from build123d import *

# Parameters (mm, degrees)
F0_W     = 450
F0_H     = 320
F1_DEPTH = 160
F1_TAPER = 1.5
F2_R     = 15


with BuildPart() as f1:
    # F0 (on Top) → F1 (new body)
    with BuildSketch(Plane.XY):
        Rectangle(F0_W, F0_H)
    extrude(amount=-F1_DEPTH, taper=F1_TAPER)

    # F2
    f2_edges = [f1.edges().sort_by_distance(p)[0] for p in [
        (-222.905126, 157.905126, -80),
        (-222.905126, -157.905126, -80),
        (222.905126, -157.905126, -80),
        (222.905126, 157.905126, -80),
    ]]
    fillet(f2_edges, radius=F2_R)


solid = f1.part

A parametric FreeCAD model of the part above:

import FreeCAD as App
import Part
import Sketcher
from FreeCAD import Vector


def edges_at(feature, points):
    """Names of the edges that pass closest to the given points."""
    edges = feature.Shape.Edges
    near = lambda p: min(range(len(edges)), key=lambda i: edges[i].distToShape(Part.Vertex(*p))[0])
    return sorted({f"Edge{near(p) + 1}" for p in points})

doc = App.newDocument("Part")
body = doc.addObject("PartDesign::Body", "Body")

# Sketch on XY plane
sketch1 = doc.addObject("Sketcher::SketchObject", "Sketch")
body.addObject(sketch1)
sketch1.AttachmentSupport = (doc.XY_Plane, [""])
sketch1.MapMode = "FlatFace"
sketch1.addGeometry([
    Part.LineSegment(Vector(-225, 160, 0), Vector(-225, -160, 0)),
    Part.LineSegment(Vector(-225, -160, 0), Vector(225, -160, 0)),
    Part.LineSegment(Vector(225, -160, 0), Vector(225, 160, 0)),
    Part.LineSegment(Vector(225, 160, 0), Vector(-225, 160, 0)),
], False)
sketch1.addConstraint([
    Sketcher.Constraint("Coincident", 0, 2, 1, 1),
    Sketcher.Constraint("Coincident", 1, 2, 2, 1),
    Sketcher.Constraint("Coincident", 2, 2, 3, 1),
    Sketcher.Constraint("Coincident", 3, 2, 0, 1),
    Sketcher.Constraint("Vertical", 0),
    Sketcher.Constraint("Horizontal", 1),
    Sketcher.Constraint("Vertical", 2),
    Sketcher.Constraint("Horizontal", 3),
    Sketcher.Constraint("Symmetric", 0, 2, 2, 2, -1, 1),
    Sketcher.Constraint("DistanceX", 1, 1, 1, 2, 450.0),
    Sketcher.Constraint("DistanceY", 0, 2, 0, 1, 320.0),
])
pad1 = doc.addObject("PartDesign::Pad", "Pad")
body.addObject(pad1)
pad1.Profile = sketch1
pad1.Length = 160
pad1.Reversed = True
pad1.TaperAngle = -1.5
doc.recompute()

fillet = doc.addObject("PartDesign::Fillet", "Fillet")
body.addObject(fillet)
fillet.Base = (pad1, edges_at(pad1, [
    (-222.905, 157.905, -80),
    (-222.905, -157.905, -80),
    (222.905, -157.905, -80),
    (222.905, 157.905, -80),
]))
fillet.Radius = 15

doc.recompute()
